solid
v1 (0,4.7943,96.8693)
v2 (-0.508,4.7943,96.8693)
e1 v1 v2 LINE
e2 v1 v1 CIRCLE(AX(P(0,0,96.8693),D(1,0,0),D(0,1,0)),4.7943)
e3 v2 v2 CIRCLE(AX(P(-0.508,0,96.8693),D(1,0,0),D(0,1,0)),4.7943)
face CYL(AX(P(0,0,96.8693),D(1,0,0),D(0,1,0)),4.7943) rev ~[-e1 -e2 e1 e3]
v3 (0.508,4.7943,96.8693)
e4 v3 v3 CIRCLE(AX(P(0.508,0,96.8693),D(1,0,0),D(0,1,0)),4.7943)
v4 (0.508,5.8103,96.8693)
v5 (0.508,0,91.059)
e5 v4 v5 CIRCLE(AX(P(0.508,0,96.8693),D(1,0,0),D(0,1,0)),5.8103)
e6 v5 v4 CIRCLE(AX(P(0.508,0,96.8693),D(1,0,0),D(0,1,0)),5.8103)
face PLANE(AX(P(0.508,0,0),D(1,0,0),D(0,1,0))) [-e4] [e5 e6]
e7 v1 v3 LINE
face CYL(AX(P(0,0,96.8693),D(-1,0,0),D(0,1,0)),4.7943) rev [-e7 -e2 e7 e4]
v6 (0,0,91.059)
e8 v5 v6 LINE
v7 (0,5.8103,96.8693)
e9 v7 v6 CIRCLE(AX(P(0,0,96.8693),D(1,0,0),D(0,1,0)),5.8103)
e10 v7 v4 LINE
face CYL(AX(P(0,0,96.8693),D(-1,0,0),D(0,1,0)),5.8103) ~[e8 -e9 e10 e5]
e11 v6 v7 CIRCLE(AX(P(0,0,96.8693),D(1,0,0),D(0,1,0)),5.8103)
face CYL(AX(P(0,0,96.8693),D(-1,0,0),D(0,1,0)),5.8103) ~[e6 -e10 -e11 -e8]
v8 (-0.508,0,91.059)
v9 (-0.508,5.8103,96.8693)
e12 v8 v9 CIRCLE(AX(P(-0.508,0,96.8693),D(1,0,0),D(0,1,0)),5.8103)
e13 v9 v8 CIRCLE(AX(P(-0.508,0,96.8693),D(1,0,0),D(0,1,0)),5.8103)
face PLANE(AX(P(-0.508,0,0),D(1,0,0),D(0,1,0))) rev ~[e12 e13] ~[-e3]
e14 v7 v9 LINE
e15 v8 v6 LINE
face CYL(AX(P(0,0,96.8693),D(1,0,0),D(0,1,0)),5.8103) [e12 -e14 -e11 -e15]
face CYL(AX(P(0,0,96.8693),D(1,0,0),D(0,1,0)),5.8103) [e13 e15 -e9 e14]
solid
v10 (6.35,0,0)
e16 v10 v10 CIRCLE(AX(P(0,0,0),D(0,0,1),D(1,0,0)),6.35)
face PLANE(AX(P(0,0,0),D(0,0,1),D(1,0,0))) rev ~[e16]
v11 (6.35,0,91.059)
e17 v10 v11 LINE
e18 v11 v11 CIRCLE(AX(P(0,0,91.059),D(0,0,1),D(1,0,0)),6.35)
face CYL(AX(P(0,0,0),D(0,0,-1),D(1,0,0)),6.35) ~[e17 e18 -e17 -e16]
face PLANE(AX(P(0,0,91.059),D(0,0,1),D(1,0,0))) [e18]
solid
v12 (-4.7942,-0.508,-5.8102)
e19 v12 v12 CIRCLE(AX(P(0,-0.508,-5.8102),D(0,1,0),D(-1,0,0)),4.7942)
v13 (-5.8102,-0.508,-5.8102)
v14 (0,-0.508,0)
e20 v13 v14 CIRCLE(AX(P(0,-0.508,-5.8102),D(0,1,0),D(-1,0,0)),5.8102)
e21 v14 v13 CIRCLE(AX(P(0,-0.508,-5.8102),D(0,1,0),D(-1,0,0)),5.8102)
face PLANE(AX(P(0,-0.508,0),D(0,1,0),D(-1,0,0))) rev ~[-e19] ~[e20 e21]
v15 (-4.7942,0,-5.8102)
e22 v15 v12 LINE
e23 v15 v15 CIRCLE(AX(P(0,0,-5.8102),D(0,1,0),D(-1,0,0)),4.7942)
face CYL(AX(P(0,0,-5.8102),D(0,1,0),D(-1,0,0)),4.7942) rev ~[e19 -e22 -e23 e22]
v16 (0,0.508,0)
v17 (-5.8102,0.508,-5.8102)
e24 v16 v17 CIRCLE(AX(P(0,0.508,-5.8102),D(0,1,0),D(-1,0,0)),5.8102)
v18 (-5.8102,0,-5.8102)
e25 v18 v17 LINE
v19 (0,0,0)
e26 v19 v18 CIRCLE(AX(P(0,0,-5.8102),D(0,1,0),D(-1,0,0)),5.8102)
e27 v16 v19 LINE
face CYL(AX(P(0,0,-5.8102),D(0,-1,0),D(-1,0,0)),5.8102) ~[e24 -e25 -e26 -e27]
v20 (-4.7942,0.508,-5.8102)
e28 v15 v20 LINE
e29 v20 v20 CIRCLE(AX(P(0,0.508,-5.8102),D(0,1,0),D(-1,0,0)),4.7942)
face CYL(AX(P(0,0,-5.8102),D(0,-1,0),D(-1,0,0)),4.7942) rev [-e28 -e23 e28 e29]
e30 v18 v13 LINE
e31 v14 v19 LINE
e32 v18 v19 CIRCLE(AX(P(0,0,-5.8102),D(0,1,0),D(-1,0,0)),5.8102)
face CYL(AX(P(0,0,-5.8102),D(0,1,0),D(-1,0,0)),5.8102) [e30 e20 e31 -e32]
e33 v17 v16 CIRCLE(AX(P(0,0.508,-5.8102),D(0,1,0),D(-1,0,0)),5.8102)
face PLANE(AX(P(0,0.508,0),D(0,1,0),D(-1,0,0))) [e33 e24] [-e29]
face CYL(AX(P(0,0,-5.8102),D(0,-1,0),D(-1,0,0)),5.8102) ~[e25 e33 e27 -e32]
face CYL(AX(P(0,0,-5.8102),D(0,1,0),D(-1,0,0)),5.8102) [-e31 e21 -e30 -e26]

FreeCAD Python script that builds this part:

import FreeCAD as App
import Part
import Sketcher
from FreeCAD import Vector
Q = App.Units.Quantity

doc = App.newDocument("Part")
params = doc.addObject("Spreadsheet::Sheet", "Params")
for row, (alias, value) in enumerate([
    ("sketch1_diameter", "0.5 in"),
    ("pad1_length", "3.585 in"),
    ("pad2_length", "0.04 in"),
    ("pad3_length", "0.04 in"),
], start=1):
    params.set(f"A{row}", alias)
    params.set(f"B{row}", "=" + value)
    params.setAlias(f"B{row}", alias)

body = doc.addObject("PartDesign::Body", "Body")
body.AllowCompound = True

# Sketch on XY plane
sketch1 = body.newObject("Sketcher::SketchObject", "Sketch")
sketch1.AttachmentSupport = (doc.getObject("XY_Plane"), [""])
sketch1.MapMode = "FlatFace"
sketch1.addGeometry(Part.Circle(Vector(0, 0, 0), Vector(0, 0, 1), 6), False)
sketch1.addConstraint([
    Sketcher.Constraint("Coincident", 0, 3, -1, 1),
    Sketcher.Constraint("Diameter", 0, Q("0.5 in")),
])
sketch1.setExpression("Constraints[1]", "Params.sketch1_diameter")
pad1 = body.newObject("PartDesign::Pad", "Pad")
pad1.Profile = sketch1
pad1.setExpression("Length", "Params.pad1_length")

# Sketch on YZ plane
sketch2 = body.newObject("Sketcher::SketchObject", "Sketch001")
sketch2.AttachmentSupport = (doc.getObject("YZ_Plane"), [""])
sketch2.MapMode = "FlatFace"
sketch2.addGeometry([
    Part.Circle(Vector(0, 96.9, 0), Vector(0, 0, 1), 5.8),
    Part.Circle(Vector(0, 96.9, 0), Vector(0, 0, 1), 4.8),
], False)
sketch2.addConstraint([
    Sketcher.Constraint("Coincident", 1, 3, 0, 3),
    Sketcher.Constraint("PointOnObject", 0, 3, -2),
    Sketcher.Constraint("Diameter", 0, Q("0.4575 in")),
    Sketcher.Constraint("Diameter", 1, Q("0.3775 in")),
    Sketcher.Constraint("DistanceY", -1, 1, 0, 3, 96.8693),
])
pad2 = body.newObject("PartDesign::Pad", "Pad001")
pad2.Profile = sketch2
pad2.setExpression("Length", "Params.pad2_length")
pad2.Midplane = True

# Sketch on XZ plane
sketch3 = body.newObject("Sketcher::SketchObject", "Sketch002")
sketch3.AttachmentSupport = (doc.getObject("XZ_Plane"), [""])
sketch3.MapMode = "FlatFace"
sketch3.addGeometry([
    Part.Circle(Vector(0, -5.8, 0), Vector(0, 0, 1), 5.8),
    Part.Circle(Vector(0, -5.8, 0), Vector(0, 0, 1), 4.8),
], False)
sketch3.addConstraint([
    Sketcher.Constraint("Coincident", 1, 3, 0, 3),
    Sketcher.Constraint("PointOnObject", 0, 3, -2),
    Sketcher.Constraint("Diameter", 0, Q("0.4575 in")),
    Sketcher.Constraint("Diameter", 1, Q("0.3775 in")),
    Sketcher.Constraint("DistanceY", 0, 3, -1, 1, 5.8102),
])
pad3 = body.newObject("PartDesign::Pad", "Pad002")
pad3.Profile = sketch3
pad3.setExpression("Length", "Params.pad3_length")
pad3.Midplane = True

doc.recompute()
